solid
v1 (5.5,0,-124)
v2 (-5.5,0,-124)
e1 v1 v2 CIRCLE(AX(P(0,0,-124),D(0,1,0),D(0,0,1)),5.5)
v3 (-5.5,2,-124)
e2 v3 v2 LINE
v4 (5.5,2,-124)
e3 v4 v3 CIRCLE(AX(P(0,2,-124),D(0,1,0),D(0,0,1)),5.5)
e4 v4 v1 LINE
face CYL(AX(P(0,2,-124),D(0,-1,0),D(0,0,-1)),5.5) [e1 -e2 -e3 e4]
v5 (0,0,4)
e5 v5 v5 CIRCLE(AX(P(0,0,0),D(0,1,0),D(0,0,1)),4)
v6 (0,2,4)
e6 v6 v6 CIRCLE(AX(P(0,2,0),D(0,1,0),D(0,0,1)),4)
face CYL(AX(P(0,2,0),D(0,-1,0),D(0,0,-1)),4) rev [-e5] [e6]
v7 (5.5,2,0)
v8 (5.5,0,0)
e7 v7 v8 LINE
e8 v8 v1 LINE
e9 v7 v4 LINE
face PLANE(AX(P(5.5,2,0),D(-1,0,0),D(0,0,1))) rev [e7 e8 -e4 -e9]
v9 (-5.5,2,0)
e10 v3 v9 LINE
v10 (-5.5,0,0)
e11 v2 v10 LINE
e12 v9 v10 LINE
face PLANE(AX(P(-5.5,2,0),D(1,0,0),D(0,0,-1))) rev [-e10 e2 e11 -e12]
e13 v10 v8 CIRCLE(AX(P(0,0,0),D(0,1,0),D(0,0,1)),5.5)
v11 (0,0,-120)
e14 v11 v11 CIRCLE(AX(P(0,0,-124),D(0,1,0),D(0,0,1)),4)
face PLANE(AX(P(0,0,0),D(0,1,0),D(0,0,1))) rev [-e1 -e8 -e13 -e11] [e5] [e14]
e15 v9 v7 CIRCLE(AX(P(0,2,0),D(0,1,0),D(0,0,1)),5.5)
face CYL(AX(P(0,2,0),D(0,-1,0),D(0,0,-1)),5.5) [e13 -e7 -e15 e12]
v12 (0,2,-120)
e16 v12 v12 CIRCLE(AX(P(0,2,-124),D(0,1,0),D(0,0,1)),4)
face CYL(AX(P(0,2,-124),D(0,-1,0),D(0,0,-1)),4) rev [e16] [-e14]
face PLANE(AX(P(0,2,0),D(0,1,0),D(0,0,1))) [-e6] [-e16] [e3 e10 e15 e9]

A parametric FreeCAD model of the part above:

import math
import FreeCAD as App
import Part
import Sketcher

V = App.Vector

doc = App.newDocument("Part")
params = doc.addObject("Spreadsheet::Sheet", "Params")
for row, (alias, value) in enumerate([
    ("sketch1_diameter", "8 mm"),
    ("sketch1_radius", "5.5 mm"),
    ("sketch1_height", "124 mm"),
    ("pad1_length", "2 mm"),
], start=1):
    params.set(f"A{row}", alias)
    params.set(f"B{row}", "=" + value)
    params.setAlias(f"B{row}", alias)

body = doc.addObject("PartDesign::Body", "Body")

# Sketch on XZ plane
sketch1 = doc.addObject("Sketcher::SketchObject", "Sketch")
body.addObject(sketch1)
sketch1.AttachmentSupport = (doc.XZ_Plane, [""])
sketch1.MapMode = "FlatFace"
sketch1.addGeometry(Part.LineSegment(V(-5.5, -124, 0), V(-5.5, 0, 0)), False)
sketch1.addGeometry(Part.ArcOfCircle(Part.Circle(V(0, 0, 0), V(0, 0, 1), 5.5), math.radians(0), math.radians(180)), False)
sketch1.addGeometry(Part.LineSegment(V(5.5, 0, 0), V(5.5, -124, 0)), False)
sketch1.addGeometry(Part.ArcOfCircle(Part.Circle(V(0, -124, 0), V(0, 0, 1), 5.5), math.radians(180), math.radians(360)), False)
sketch1.addGeometry(Part.Circle(V(0, 0, 0), V(0, 0, 1), 4), False)
sketch1.addGeometry(Part.Circle(V(0, -124, 0), V(0, 0, 1), 4), False)
sketch1.addConstraint(Sketcher.Constraint("Tangent", 0, 2, 1, 2))
sketch1.addConstraint(Sketcher.Constraint("Tangent", 1, 1, 2, 1))
sketch1.addConstraint(Sketcher.Constraint("Tangent", 2, 2, 3, 2))
sketch1.addConstraint(Sketcher.Constraint("Tangent", 3, 1, 0, 1))
sketch1.addConstraint(Sketcher.Constraint("Vertical", 0))
sketch1.addConstraint(Sketcher.Constraint("Vertical", 2))
sketch1.addConstraint(Sketcher.Constraint("Coincident", 1, 3, -1, 1))
sketch1.addConstraint(Sketcher.Constraint("Coincident", 4, 3, -1, 1))
sketch1.addConstraint(Sketcher.Constraint("Coincident", 5, 3, 3, 3))
sketch1.addConstraint(Sketcher.Constraint("Equal", 4, 5))
sketch1.addConstraint(Sketcher.Constraint("Diameter", 4, 8.0))
sketch1.addConstraint(Sketcher.Constraint("Radius", 1, 5.5))
sketch1.addConstraint(Sketcher.Constraint("DistanceY", 0, 1, 0, 2, 124.0))
sketch1.setExpression("Constraints[10]", "Params.sketch1_diameter")
sketch1.setExpression("Constraints[11]", "Params.sketch1_radius")
sketch1.setExpression("Constraints[12]", "Params.sketch1_height")
pad1 = doc.addObject("PartDesign::Pad", "Pad")
body.addObject(pad1)
pad1.Profile = sketch1
pad1.setExpression("Length", "Params.pad1_length")
pad1.Reversed = True

doc.recompute()
